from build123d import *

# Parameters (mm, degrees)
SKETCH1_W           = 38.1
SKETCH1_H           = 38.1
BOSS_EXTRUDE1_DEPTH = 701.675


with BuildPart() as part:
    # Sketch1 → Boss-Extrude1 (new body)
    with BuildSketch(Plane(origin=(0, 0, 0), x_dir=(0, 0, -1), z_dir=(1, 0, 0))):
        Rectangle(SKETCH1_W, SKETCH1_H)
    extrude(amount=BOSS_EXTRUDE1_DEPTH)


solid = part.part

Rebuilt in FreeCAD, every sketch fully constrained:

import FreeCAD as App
import Part
import Sketcher
from FreeCAD import Vector
Q = App.Units.Quantity


def add_polygon(sketch, points):
    """Adds a closed chain of lines whose ends are joined by coincident constraints."""
    first, n = sketch.GeometryCount, len(points)
    for a, b in zip(points, points[1:] + points[:1]):
        sketch.addGeometry(Part.LineSegment(App.Vector(*a, 0), App.Vector(*b, 0)), False)
    for i in range(n):
        sketch.addConstraint(Sketcher.Constraint("Coincident", first + i, 2, first + (i + 1) % n, 1))

doc = App.newDocument("Part")
body = doc.addObject("PartDesign::Body", "Body")

sketch1 = body.newObject("Sketcher::SketchObject", "Sketch")
sketch1.AttachmentSupport = (doc.getObject("YZ_Plane"), [""])
sketch1.MapMode = "FlatFace"
add_polygon(sketch1, [(19, 19), (-19, 19), (-19, -19), (19, -19)])
sketch1.addConstraint([
    Sketcher.Constraint("Horizontal", 0),
    Sketcher.Constraint("Vertical", 1),
    Sketcher.Constraint("Horizontal", 2),
    Sketcher.Constraint("Vertical", 3),
    Sketcher.Constraint("Symmetric", 0, 2, 2, 2, -1, 1),
    Sketcher.Constraint("Equal", 2, 1),
    Sketcher.Constraint("DistanceX", 0, 2, 0, 1, Q("1.5 in")),
])
pad1 = body.newObject("PartDesign::Pad", "Pad")
pad1.Profile = sketch1
pad1.Length = Q("27.625 in")

doc.recompute()
